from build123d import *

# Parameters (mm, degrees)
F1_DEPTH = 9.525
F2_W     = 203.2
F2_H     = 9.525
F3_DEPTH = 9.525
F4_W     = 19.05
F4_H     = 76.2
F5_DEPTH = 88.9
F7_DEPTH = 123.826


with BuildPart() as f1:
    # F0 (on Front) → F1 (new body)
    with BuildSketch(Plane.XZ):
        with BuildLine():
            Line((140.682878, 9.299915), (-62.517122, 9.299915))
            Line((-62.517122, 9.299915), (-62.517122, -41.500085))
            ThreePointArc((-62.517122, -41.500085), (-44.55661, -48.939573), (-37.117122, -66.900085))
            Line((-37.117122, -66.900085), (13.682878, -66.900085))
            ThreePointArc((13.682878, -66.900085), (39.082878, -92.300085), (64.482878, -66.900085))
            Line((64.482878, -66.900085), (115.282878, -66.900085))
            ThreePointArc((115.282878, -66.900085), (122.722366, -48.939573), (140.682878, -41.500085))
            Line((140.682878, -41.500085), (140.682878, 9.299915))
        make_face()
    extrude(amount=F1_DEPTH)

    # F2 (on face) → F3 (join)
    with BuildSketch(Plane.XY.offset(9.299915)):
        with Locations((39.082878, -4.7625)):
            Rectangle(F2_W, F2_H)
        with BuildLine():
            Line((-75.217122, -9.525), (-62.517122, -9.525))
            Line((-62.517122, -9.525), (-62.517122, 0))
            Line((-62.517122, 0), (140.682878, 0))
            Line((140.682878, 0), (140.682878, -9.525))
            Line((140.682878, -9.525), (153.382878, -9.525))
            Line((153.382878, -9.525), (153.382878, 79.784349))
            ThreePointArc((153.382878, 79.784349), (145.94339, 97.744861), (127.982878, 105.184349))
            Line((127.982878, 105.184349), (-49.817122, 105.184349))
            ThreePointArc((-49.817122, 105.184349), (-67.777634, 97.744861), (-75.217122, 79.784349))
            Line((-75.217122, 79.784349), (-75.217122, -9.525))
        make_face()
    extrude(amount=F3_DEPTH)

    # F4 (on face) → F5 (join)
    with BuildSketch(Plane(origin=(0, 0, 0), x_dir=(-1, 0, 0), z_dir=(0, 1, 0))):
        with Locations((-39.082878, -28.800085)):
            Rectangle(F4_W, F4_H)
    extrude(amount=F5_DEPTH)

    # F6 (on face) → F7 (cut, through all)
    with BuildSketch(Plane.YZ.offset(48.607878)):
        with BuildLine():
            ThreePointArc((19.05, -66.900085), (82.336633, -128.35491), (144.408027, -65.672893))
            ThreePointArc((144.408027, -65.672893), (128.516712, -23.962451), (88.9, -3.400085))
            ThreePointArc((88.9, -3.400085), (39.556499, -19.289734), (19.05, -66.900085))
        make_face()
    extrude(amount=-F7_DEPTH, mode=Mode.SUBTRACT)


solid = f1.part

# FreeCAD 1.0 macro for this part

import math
import FreeCAD as App
import Part
import Sketcher

V = App.Vector
Q = App.Units.Quantity

doc = App.newDocument("Part")
body = doc.addObject("PartDesign::Body", "Body")

# Sketch on XZ plane
sketch1 = body.newObject("Sketcher::SketchObject", "Sketch")
sketch1.AttachmentSupport = (doc.getObject("XZ_Plane"), [""])
sketch1.MapMode = "FlatFace"
sketch1.addGeometry([
    Part.LineSegment(V(141, 9, 0), V(-63, 9, 0)),  # 0
    Part.LineSegment(V(-63, 9, 0), V(-63, -42, 0)),  # 1
    Part.ArcOfCircle(Part.Circle(V(-63, -67, 0), V(0, 0, 1), 25), math.radians(0), math.radians(90)),  # 2
    Part.LineSegment(V(-37, -67, 0), V(14, -67, 0)),  # 3
    Part.ArcOfCircle(Part.Circle(V(39, -67, 0), V(0, 0, 1), 25), math.radians(180), math.radians(360)),  # 4
    Part.LineSegment(V(64, -67, 0), V(115, -67, 0)),  # 5
    Part.ArcOfCircle(Part.Circle(V(141, -67, 0), V(0, 0, 1), 25), math.radians(90), math.radians(180)),  # 6
    Part.LineSegment(V(141, -42, 0), V(141, 9, 0)),  # 7
], False)
sketch1.addConstraint([
    Sketcher.Constraint("Coincident", 0, 2, 1, 1),
    Sketcher.Constraint("Coincident", 1, 2, 2, 2),
    Sketcher.Constraint("Coincident", 2, 1, 3, 1),
    Sketcher.Constraint("Coincident", 3, 2, 4, 1),
    Sketcher.Constraint("Coincident", 4, 2, 5, 1),
    Sketcher.Constraint("Coincident", 5, 2, 6, 2),
    Sketcher.Constraint("Coincident", 6, 1, 7, 1),
    Sketcher.Constraint("Coincident", 7, 2, 0, 1),
    Sketcher.Constraint("Horizontal", 0),
    Sketcher.Constraint("Vertical", 1),
    Sketcher.Constraint("Horizontal", 3),
    Sketcher.Constraint("Horizontal", 5),
    Sketcher.Constraint("Vertical", 7),
    Sketcher.Constraint("Equal", 2, 4),
    Sketcher.Constraint("Equal", 4, 6),
    Sketcher.Constraint("Horizontal", 2, 3, 4, 3),
    Sketcher.Constraint("Horizontal", 4, 3, 6, 3),
    Sketcher.Constraint("Horizontal", 6, 3, 2, 1),
    Sketcher.Constraint("Horizontal", 3, 2, 4, 2),
    Sketcher.Constraint("Vertical", 2, 3, 0, 2),
    Sketcher.Constraint("Equal", 3, 5),
    Sketcher.Constraint("Equal", 5, 1),
    Sketcher.Constraint("Radius", 2, Q("1 in")),
    Sketcher.Constraint("DistanceX", 0, 2, 0, 1, Q("8 in")),
    Sketcher.Constraint("DistanceX", 3, 1, 3, 2, Q("2 in")),
    Sketcher.Constraint("DistanceX", -1, 1, 6, 3, 140.682879),
    Sketcher.Constraint("DistanceY", 2, 3, -1, 1, 66.900086),
])
pad1 = body.newObject("PartDesign::Pad", "Pad")
pad1.Profile = sketch1
pad1.Length = Q("0.375 in")

# Sketch on XY plane
sketch2 = body.newObject("Sketcher::SketchObject", "Sketch001")
sketch2.AttachmentSupport = (doc.getObject("XY_Plane"), [""])
sketch2.MapMode = "FlatFace"
sketch2.AttachmentOffset = App.Placement(V(0, 0, 9.299915), App.Rotation())
sketch2.addGeometry([
    Part.LineSegment(V(153, -10, 0), V(153, 80, 0)),  # 0
    Part.ArcOfCircle(Part.Circle(V(128, 80, 0), V(0, 0, 1), 25), math.radians(0), math.radians(90)),  # 1
    Part.LineSegment(V(128, 105, 0), V(-50, 105, 0)),  # 2
    Part.ArcOfCircle(Part.Circle(V(-50, 80, 0), V(0, 0, 1), 25), math.radians(90), math.radians(180)),  # 3
    Part.LineSegment(V(-75, 80, 0), V(-75, -10, 0)),  # 4
    Part.LineSegment(V(-75, -10, 0), V(153, -10, 0)),  # 5
], False)
sketch2.addConstraint([
    Sketcher.Constraint("Tangent", 0, 2, 1, 1),
    Sketcher.Constraint("Tangent", 1, 2, 2, 1),
    Sketcher.Constraint("Tangent", 2, 2, 3, 1),
    Sketcher.Constraint("Tangent", 3, 2, 4, 1),
    Sketcher.Constraint("Coincident", 4, 2, 5, 1),
    Sketcher.Constraint("Coincident", 5, 2, 0, 1),
    Sketcher.Constraint("Vertical", 0),
    Sketcher.Constraint("Horizontal", 2),
    Sketcher.Constraint("Vertical", 4),
    Sketcher.Constraint("Horizontal", 5),
    Sketcher.Constraint("Equal", 1, 3),
    Sketcher.Constraint("Radius", 1, Q("1 in")),
    Sketcher.Constraint("DistanceX", 2, 2, 2, 1, Q("7 in")),
    Sketcher.Constraint("DistanceY", 4, 2, -1, 1, Q("0.375 in")),
    Sketcher.Constraint("DistanceY", 0, 1, 0, 2, 89.309349),
    Sketcher.Constraint("DistanceX", 3, 3, -1, 1, 49.817121),
])
pad2 = body.newObject("PartDesign::Pad", "Pad001")
pad2.Profile = sketch2
pad2.Length = Q("0.375 in")

# Sketch on XZ plane
sketch3 = body.newObject("Sketcher::SketchObject", "Sketch002")
sketch3.AttachmentSupport = (doc.getObject("XZ_Plane"), [""])
sketch3.MapMode = "FlatFace"
sketch3.addGeometry([
    Part.LineSegment(V(49, 9, 0), V(49, -67, 0)),
    Part.LineSegment(V(49, -67, 0), V(30, -67, 0)),
    Part.LineSegment(V(30, -67, 0), V(30, 9, 0)),
    Part.LineSegment(V(30, 9, 0), V(49, 9, 0)),
], False)
sketch3.addConstraint([
    Sketcher.Constraint("Coincident", 0, 2, 1, 1),
    Sketcher.Constraint("Coincident", 1, 2, 2, 1),
    Sketcher.Constraint("Coincident", 2, 2, 3, 1),
    Sketcher.Constraint("Coincident", 3, 2, 0, 1),
    Sketcher.Constraint("Vertical", 0),
    Sketcher.Constraint("Horizontal", 1),
    Sketcher.Constraint("Vertical", 2),
    Sketcher.Constraint("Horizontal", 3),
    Sketcher.Constraint("DistanceY", 0, 2, 0, 1, Q("3 in")),
    Sketcher.Constraint("DistanceX", 1, 2, 1, 1, Q("0.75 in")),
    Sketcher.Constraint("DistanceX", -1, 1, 0, 2, 48.607878),
    Sketcher.Constraint("DistanceY", 0, 2, -1, 1, 66.900085),
])
pad3 = body.newObject("PartDesign::Pad", "Pad002")
pad3.Profile = sketch3
pad3.Length = Q("3.5 in")
pad3.Reversed = True

# Sketch on YZ plane
sketch4 = body.newObject("Sketcher::SketchObject", "Sketch003")
sketch4.AttachmentSupport = (doc.getObject("YZ_Plane"), [""])
sketch4.MapMode = "FlatFace"
sketch4.AttachmentOffset = App.Placement(V(0, 0, 48.607878), App.Rotation())
sketch4.addGeometry([
    Part.ArcOfCircle(Part.Circle(V(82, -66, 0), V(0, 0, 1), 63), math.radians(-179), math.radians(0)),
    Part.ArcOfCircle(Part.Circle(V(82, -66, 0), V(0, 0, 1), 63), math.radians(0), math.radians(83)),
    Part.ArcOfCircle(Part.Circle(V(82, -66, 0), V(0, 0, 1), 63), math.radians(83), math.radians(181)),
], False)
sketch4.addConstraint([
    Sketcher.Constraint("Tangent", 0, 2, 1, 1),
    Sketcher.Constraint("Tangent", 1, 2, 2, 1),
    Sketcher.Constraint("Tangent", 2, 2, 0, 1),
    Sketcher.Constraint("Horizontal", 2, 3, 0, 2),
    Sketcher.Constraint("DistanceX", -1, 1, 1, 2, Q("3.5 in")),
    Sketcher.Constraint("DistanceY", 2, 2, 1, 2, Q("2.5 in")),
    Sketcher.Constraint("DistanceX", -1, 1, 2, 2, Q("0.75 in")),
    Sketcher.Constraint("Radius", 0, 62.68502),
    Sketcher.Constraint("DistanceY", 0, 3, -1, 1, 65.672893),
])
pocket1 = body.newObject("PartDesign::Pocket", "Pocket")
pocket1.Profile = sketch4
pocket1.Type = "ThroughAll"

doc.recompute()
